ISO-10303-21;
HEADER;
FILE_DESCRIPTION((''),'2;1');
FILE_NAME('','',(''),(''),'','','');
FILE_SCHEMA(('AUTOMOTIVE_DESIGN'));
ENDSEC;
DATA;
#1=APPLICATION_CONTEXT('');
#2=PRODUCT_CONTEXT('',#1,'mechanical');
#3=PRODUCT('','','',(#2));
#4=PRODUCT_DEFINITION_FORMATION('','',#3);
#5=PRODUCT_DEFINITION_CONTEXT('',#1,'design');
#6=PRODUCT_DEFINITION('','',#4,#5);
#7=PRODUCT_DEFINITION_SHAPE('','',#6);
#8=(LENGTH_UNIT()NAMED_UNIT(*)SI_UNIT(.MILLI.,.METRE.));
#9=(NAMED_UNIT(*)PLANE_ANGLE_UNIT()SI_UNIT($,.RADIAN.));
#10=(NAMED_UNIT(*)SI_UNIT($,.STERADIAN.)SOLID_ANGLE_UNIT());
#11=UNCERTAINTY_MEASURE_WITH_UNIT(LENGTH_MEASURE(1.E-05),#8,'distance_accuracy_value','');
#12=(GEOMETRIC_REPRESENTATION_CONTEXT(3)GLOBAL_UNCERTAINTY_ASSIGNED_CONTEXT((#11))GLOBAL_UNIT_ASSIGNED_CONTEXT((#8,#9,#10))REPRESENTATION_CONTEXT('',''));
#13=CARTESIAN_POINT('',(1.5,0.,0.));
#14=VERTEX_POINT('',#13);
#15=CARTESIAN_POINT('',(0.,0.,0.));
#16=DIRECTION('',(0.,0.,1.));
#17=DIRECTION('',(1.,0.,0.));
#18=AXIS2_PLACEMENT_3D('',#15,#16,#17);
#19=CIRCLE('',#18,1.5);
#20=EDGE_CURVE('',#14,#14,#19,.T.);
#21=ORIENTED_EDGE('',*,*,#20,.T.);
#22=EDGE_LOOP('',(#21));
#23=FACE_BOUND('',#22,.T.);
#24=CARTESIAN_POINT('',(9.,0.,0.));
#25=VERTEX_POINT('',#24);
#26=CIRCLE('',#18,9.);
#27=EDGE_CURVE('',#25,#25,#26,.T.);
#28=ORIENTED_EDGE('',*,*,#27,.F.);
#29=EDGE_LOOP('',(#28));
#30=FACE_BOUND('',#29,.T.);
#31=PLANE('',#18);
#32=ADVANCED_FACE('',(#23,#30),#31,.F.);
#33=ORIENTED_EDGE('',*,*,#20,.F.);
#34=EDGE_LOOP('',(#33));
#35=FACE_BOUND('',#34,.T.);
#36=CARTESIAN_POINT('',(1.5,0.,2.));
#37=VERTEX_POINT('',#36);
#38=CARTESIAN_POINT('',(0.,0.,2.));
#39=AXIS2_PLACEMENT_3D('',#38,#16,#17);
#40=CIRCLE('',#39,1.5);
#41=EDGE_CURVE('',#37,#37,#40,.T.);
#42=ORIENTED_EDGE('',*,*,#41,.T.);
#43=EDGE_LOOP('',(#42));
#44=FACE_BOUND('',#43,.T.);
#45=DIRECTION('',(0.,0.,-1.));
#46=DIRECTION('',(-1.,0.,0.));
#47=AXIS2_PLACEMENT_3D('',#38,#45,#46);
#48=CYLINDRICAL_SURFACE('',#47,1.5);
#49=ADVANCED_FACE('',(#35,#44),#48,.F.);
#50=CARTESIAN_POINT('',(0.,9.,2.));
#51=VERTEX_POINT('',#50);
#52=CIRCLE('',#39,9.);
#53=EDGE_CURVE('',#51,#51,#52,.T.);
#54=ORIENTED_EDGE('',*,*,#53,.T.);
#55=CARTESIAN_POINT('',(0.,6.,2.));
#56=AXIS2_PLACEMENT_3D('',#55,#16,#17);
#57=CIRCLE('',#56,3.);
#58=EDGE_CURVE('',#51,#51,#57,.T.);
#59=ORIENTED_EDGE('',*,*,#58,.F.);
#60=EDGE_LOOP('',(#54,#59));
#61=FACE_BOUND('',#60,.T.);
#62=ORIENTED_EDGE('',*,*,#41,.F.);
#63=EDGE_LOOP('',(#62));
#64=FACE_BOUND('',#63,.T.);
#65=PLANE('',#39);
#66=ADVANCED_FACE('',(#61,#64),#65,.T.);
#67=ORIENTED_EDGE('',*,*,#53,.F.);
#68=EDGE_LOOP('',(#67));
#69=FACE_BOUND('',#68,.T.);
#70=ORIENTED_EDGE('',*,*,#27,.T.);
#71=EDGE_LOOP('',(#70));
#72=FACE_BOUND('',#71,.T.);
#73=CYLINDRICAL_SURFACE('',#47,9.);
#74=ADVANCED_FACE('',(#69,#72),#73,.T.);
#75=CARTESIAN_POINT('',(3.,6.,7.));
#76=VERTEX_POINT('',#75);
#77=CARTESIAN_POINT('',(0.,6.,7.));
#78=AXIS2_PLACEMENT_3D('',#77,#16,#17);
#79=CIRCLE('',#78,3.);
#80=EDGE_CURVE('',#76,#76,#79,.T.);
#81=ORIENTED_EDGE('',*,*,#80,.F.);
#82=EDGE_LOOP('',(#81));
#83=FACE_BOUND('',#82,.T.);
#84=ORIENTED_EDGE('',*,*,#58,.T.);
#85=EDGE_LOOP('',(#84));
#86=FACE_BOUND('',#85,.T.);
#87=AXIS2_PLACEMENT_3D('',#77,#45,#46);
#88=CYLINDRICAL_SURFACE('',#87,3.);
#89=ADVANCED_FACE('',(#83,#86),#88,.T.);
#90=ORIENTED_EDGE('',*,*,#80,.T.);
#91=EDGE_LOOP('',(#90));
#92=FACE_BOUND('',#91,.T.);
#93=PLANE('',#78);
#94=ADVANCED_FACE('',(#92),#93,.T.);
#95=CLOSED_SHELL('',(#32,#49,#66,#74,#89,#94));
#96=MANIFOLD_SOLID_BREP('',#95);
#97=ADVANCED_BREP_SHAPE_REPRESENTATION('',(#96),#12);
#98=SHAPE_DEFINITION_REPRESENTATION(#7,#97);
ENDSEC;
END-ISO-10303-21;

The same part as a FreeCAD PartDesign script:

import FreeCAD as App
import Part
import Sketcher
from FreeCAD import Vector
Q = App.Units.Quantity

doc = App.newDocument("Part")
body = doc.addObject("PartDesign::Body", "Body")

# Sketch on XY plane
sketch1 = body.newObject("Sketcher::SketchObject", "Sketch")
sketch1.AttachmentSupport = (doc.getObject("XY_Plane"), [""])
sketch1.MapMode = "FlatFace"
sketch1.addGeometry([
    Part.Circle(Vector(0, 0, 0), Vector(0, 0, 1), 9),
    Part.Circle(Vector(0, 0, 0), Vector(0, 0, 1), 1.5),
], False)
sketch1.addConstraint([
    Sketcher.Constraint("Coincident", 0, 3, -1, 1),
    Sketcher.Constraint("Coincident", 1, 3, -1, 1),
    Sketcher.Constraint("Diameter", 0, Q("18 mm")),
    Sketcher.Constraint("Diameter", 1, Q("3 mm")),
])
pad1 = body.newObject("PartDesign::Pad", "Pad")
pad1.Profile = sketch1
pad1.Length = 2

# Sketch on XY plane
sketch2 = body.newObject("Sketcher::SketchObject", "Sketch001")
sketch2.AttachmentSupport = (doc.getObject("XY_Plane"), [""])
sketch2.MapMode = "FlatFace"
sketch2.AttachmentOffset = App.Placement(Vector(0, 0, 2), App.Rotation())
sketch2.addGeometry(Part.Circle(Vector(0, 6, 0), Vector(0, 0, 1), 3), False)
sketch2.addConstraint([
    Sketcher.Constraint("PointOnObject", 0, 3, -2),
    Sketcher.Constraint("Diameter", 0, Q("6 mm")),
    Sketcher.Constraint("DistanceY", -1, 1, 0, 3, Q("6 mm")),
])
pad2 = body.newObject("PartDesign::Pad", "Pad001")
pad2.Profile = sketch2
pad2.Length = 5

doc.recompute()
